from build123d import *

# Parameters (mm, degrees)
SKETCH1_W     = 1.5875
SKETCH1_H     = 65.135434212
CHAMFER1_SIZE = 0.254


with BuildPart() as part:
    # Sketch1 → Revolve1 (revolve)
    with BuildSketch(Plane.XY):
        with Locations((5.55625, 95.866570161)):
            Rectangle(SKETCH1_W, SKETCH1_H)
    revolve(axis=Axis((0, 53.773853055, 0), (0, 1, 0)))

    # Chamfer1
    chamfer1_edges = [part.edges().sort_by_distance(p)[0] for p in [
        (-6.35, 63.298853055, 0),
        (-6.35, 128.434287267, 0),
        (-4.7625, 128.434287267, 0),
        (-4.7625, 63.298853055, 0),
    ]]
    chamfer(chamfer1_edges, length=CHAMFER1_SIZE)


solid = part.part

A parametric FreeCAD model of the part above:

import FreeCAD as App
import Part
import Sketcher
from FreeCAD import Vector
Q = App.Units.Quantity


def edges_at(feature, points):
    """Names of the edges that pass closest to the given points."""
    edges = feature.Shape.Edges
    near = lambda p: min(range(len(edges)), key=lambda i: edges[i].distToShape(Part.Vertex(*p))[0])
    return sorted({f"Edge{near(p) + 1}" for p in points})


def add_polygon(sketch, points):
    """Adds a closed chain of lines whose ends are joined by coincident constraints."""
    first, n = sketch.GeometryCount, len(points)
    for a, b in zip(points, points[1:] + points[:1]):
        sketch.addGeometry(Part.LineSegment(App.Vector(*a, 0), App.Vector(*b, 0)), False)
    for i in range(n):
        sketch.addConstraint(Sketcher.Constraint("Coincident", first + i, 2, first + (i + 1) % n, 1))

doc = App.newDocument("Part")
body = doc.addObject("PartDesign::Body", "Body")

# Sketch on XY plane
sketch1 = body.newObject("Sketcher::SketchObject", "Sketch")
sketch1.AttachmentSupport = (doc.getObject("XY_Plane"), [""])
sketch1.MapMode = "FlatFace"
add_polygon(sketch1, [(4.8, 128.4), (4.8, 63.3), (6.3, 63.3), (6.3, 128.4)])  # lines 0-3
sketch1.addConstraint(Sketcher.Constraint("Vertical", 0))
sketch1.addConstraint(Sketcher.Constraint("Horizontal", 1))
sketch1.addConstraint(Sketcher.Constraint("Vertical", 2))
sketch1.addConstraint(Sketcher.Constraint("Horizontal", 3))
sketch1.addConstraint(Sketcher.Constraint("DistanceX", 1, 1, 1, 2, Q("0.0625 in")))
sketch1.addConstraint(Sketcher.Constraint("DistanceX", -1, 1, 1, 2, Q("0.25 in")))
sketch1.addConstraint(Sketcher.Constraint("DistanceY", 0, 2, 0, 1, Q("65.135434 mm")))
sketch1.addConstraint(Sketcher.Constraint("DistanceY", -1, 1, 0, 2, Q("63.298853 mm")))
revolution = body.newObject("PartDesign::Revolution", "Revolution")
revolution.Profile = sketch1
revolution.ReferenceAxis = (sketch1, ["V_Axis"])
revolution.Angle = 360
doc.recompute()

chamfer = body.newObject("PartDesign::Chamfer", "Chamfer")
chamfer.Base = (revolution, edges_at(revolution, [
    (-6.35, 63.299, 0),
    (-6.35, 128.434, 0),
    (-4.763, 128.434, 0),
    (-4.763, 63.299, 0),
]))
chamfer.Size = Q("0.01 in")

doc.recompute()
